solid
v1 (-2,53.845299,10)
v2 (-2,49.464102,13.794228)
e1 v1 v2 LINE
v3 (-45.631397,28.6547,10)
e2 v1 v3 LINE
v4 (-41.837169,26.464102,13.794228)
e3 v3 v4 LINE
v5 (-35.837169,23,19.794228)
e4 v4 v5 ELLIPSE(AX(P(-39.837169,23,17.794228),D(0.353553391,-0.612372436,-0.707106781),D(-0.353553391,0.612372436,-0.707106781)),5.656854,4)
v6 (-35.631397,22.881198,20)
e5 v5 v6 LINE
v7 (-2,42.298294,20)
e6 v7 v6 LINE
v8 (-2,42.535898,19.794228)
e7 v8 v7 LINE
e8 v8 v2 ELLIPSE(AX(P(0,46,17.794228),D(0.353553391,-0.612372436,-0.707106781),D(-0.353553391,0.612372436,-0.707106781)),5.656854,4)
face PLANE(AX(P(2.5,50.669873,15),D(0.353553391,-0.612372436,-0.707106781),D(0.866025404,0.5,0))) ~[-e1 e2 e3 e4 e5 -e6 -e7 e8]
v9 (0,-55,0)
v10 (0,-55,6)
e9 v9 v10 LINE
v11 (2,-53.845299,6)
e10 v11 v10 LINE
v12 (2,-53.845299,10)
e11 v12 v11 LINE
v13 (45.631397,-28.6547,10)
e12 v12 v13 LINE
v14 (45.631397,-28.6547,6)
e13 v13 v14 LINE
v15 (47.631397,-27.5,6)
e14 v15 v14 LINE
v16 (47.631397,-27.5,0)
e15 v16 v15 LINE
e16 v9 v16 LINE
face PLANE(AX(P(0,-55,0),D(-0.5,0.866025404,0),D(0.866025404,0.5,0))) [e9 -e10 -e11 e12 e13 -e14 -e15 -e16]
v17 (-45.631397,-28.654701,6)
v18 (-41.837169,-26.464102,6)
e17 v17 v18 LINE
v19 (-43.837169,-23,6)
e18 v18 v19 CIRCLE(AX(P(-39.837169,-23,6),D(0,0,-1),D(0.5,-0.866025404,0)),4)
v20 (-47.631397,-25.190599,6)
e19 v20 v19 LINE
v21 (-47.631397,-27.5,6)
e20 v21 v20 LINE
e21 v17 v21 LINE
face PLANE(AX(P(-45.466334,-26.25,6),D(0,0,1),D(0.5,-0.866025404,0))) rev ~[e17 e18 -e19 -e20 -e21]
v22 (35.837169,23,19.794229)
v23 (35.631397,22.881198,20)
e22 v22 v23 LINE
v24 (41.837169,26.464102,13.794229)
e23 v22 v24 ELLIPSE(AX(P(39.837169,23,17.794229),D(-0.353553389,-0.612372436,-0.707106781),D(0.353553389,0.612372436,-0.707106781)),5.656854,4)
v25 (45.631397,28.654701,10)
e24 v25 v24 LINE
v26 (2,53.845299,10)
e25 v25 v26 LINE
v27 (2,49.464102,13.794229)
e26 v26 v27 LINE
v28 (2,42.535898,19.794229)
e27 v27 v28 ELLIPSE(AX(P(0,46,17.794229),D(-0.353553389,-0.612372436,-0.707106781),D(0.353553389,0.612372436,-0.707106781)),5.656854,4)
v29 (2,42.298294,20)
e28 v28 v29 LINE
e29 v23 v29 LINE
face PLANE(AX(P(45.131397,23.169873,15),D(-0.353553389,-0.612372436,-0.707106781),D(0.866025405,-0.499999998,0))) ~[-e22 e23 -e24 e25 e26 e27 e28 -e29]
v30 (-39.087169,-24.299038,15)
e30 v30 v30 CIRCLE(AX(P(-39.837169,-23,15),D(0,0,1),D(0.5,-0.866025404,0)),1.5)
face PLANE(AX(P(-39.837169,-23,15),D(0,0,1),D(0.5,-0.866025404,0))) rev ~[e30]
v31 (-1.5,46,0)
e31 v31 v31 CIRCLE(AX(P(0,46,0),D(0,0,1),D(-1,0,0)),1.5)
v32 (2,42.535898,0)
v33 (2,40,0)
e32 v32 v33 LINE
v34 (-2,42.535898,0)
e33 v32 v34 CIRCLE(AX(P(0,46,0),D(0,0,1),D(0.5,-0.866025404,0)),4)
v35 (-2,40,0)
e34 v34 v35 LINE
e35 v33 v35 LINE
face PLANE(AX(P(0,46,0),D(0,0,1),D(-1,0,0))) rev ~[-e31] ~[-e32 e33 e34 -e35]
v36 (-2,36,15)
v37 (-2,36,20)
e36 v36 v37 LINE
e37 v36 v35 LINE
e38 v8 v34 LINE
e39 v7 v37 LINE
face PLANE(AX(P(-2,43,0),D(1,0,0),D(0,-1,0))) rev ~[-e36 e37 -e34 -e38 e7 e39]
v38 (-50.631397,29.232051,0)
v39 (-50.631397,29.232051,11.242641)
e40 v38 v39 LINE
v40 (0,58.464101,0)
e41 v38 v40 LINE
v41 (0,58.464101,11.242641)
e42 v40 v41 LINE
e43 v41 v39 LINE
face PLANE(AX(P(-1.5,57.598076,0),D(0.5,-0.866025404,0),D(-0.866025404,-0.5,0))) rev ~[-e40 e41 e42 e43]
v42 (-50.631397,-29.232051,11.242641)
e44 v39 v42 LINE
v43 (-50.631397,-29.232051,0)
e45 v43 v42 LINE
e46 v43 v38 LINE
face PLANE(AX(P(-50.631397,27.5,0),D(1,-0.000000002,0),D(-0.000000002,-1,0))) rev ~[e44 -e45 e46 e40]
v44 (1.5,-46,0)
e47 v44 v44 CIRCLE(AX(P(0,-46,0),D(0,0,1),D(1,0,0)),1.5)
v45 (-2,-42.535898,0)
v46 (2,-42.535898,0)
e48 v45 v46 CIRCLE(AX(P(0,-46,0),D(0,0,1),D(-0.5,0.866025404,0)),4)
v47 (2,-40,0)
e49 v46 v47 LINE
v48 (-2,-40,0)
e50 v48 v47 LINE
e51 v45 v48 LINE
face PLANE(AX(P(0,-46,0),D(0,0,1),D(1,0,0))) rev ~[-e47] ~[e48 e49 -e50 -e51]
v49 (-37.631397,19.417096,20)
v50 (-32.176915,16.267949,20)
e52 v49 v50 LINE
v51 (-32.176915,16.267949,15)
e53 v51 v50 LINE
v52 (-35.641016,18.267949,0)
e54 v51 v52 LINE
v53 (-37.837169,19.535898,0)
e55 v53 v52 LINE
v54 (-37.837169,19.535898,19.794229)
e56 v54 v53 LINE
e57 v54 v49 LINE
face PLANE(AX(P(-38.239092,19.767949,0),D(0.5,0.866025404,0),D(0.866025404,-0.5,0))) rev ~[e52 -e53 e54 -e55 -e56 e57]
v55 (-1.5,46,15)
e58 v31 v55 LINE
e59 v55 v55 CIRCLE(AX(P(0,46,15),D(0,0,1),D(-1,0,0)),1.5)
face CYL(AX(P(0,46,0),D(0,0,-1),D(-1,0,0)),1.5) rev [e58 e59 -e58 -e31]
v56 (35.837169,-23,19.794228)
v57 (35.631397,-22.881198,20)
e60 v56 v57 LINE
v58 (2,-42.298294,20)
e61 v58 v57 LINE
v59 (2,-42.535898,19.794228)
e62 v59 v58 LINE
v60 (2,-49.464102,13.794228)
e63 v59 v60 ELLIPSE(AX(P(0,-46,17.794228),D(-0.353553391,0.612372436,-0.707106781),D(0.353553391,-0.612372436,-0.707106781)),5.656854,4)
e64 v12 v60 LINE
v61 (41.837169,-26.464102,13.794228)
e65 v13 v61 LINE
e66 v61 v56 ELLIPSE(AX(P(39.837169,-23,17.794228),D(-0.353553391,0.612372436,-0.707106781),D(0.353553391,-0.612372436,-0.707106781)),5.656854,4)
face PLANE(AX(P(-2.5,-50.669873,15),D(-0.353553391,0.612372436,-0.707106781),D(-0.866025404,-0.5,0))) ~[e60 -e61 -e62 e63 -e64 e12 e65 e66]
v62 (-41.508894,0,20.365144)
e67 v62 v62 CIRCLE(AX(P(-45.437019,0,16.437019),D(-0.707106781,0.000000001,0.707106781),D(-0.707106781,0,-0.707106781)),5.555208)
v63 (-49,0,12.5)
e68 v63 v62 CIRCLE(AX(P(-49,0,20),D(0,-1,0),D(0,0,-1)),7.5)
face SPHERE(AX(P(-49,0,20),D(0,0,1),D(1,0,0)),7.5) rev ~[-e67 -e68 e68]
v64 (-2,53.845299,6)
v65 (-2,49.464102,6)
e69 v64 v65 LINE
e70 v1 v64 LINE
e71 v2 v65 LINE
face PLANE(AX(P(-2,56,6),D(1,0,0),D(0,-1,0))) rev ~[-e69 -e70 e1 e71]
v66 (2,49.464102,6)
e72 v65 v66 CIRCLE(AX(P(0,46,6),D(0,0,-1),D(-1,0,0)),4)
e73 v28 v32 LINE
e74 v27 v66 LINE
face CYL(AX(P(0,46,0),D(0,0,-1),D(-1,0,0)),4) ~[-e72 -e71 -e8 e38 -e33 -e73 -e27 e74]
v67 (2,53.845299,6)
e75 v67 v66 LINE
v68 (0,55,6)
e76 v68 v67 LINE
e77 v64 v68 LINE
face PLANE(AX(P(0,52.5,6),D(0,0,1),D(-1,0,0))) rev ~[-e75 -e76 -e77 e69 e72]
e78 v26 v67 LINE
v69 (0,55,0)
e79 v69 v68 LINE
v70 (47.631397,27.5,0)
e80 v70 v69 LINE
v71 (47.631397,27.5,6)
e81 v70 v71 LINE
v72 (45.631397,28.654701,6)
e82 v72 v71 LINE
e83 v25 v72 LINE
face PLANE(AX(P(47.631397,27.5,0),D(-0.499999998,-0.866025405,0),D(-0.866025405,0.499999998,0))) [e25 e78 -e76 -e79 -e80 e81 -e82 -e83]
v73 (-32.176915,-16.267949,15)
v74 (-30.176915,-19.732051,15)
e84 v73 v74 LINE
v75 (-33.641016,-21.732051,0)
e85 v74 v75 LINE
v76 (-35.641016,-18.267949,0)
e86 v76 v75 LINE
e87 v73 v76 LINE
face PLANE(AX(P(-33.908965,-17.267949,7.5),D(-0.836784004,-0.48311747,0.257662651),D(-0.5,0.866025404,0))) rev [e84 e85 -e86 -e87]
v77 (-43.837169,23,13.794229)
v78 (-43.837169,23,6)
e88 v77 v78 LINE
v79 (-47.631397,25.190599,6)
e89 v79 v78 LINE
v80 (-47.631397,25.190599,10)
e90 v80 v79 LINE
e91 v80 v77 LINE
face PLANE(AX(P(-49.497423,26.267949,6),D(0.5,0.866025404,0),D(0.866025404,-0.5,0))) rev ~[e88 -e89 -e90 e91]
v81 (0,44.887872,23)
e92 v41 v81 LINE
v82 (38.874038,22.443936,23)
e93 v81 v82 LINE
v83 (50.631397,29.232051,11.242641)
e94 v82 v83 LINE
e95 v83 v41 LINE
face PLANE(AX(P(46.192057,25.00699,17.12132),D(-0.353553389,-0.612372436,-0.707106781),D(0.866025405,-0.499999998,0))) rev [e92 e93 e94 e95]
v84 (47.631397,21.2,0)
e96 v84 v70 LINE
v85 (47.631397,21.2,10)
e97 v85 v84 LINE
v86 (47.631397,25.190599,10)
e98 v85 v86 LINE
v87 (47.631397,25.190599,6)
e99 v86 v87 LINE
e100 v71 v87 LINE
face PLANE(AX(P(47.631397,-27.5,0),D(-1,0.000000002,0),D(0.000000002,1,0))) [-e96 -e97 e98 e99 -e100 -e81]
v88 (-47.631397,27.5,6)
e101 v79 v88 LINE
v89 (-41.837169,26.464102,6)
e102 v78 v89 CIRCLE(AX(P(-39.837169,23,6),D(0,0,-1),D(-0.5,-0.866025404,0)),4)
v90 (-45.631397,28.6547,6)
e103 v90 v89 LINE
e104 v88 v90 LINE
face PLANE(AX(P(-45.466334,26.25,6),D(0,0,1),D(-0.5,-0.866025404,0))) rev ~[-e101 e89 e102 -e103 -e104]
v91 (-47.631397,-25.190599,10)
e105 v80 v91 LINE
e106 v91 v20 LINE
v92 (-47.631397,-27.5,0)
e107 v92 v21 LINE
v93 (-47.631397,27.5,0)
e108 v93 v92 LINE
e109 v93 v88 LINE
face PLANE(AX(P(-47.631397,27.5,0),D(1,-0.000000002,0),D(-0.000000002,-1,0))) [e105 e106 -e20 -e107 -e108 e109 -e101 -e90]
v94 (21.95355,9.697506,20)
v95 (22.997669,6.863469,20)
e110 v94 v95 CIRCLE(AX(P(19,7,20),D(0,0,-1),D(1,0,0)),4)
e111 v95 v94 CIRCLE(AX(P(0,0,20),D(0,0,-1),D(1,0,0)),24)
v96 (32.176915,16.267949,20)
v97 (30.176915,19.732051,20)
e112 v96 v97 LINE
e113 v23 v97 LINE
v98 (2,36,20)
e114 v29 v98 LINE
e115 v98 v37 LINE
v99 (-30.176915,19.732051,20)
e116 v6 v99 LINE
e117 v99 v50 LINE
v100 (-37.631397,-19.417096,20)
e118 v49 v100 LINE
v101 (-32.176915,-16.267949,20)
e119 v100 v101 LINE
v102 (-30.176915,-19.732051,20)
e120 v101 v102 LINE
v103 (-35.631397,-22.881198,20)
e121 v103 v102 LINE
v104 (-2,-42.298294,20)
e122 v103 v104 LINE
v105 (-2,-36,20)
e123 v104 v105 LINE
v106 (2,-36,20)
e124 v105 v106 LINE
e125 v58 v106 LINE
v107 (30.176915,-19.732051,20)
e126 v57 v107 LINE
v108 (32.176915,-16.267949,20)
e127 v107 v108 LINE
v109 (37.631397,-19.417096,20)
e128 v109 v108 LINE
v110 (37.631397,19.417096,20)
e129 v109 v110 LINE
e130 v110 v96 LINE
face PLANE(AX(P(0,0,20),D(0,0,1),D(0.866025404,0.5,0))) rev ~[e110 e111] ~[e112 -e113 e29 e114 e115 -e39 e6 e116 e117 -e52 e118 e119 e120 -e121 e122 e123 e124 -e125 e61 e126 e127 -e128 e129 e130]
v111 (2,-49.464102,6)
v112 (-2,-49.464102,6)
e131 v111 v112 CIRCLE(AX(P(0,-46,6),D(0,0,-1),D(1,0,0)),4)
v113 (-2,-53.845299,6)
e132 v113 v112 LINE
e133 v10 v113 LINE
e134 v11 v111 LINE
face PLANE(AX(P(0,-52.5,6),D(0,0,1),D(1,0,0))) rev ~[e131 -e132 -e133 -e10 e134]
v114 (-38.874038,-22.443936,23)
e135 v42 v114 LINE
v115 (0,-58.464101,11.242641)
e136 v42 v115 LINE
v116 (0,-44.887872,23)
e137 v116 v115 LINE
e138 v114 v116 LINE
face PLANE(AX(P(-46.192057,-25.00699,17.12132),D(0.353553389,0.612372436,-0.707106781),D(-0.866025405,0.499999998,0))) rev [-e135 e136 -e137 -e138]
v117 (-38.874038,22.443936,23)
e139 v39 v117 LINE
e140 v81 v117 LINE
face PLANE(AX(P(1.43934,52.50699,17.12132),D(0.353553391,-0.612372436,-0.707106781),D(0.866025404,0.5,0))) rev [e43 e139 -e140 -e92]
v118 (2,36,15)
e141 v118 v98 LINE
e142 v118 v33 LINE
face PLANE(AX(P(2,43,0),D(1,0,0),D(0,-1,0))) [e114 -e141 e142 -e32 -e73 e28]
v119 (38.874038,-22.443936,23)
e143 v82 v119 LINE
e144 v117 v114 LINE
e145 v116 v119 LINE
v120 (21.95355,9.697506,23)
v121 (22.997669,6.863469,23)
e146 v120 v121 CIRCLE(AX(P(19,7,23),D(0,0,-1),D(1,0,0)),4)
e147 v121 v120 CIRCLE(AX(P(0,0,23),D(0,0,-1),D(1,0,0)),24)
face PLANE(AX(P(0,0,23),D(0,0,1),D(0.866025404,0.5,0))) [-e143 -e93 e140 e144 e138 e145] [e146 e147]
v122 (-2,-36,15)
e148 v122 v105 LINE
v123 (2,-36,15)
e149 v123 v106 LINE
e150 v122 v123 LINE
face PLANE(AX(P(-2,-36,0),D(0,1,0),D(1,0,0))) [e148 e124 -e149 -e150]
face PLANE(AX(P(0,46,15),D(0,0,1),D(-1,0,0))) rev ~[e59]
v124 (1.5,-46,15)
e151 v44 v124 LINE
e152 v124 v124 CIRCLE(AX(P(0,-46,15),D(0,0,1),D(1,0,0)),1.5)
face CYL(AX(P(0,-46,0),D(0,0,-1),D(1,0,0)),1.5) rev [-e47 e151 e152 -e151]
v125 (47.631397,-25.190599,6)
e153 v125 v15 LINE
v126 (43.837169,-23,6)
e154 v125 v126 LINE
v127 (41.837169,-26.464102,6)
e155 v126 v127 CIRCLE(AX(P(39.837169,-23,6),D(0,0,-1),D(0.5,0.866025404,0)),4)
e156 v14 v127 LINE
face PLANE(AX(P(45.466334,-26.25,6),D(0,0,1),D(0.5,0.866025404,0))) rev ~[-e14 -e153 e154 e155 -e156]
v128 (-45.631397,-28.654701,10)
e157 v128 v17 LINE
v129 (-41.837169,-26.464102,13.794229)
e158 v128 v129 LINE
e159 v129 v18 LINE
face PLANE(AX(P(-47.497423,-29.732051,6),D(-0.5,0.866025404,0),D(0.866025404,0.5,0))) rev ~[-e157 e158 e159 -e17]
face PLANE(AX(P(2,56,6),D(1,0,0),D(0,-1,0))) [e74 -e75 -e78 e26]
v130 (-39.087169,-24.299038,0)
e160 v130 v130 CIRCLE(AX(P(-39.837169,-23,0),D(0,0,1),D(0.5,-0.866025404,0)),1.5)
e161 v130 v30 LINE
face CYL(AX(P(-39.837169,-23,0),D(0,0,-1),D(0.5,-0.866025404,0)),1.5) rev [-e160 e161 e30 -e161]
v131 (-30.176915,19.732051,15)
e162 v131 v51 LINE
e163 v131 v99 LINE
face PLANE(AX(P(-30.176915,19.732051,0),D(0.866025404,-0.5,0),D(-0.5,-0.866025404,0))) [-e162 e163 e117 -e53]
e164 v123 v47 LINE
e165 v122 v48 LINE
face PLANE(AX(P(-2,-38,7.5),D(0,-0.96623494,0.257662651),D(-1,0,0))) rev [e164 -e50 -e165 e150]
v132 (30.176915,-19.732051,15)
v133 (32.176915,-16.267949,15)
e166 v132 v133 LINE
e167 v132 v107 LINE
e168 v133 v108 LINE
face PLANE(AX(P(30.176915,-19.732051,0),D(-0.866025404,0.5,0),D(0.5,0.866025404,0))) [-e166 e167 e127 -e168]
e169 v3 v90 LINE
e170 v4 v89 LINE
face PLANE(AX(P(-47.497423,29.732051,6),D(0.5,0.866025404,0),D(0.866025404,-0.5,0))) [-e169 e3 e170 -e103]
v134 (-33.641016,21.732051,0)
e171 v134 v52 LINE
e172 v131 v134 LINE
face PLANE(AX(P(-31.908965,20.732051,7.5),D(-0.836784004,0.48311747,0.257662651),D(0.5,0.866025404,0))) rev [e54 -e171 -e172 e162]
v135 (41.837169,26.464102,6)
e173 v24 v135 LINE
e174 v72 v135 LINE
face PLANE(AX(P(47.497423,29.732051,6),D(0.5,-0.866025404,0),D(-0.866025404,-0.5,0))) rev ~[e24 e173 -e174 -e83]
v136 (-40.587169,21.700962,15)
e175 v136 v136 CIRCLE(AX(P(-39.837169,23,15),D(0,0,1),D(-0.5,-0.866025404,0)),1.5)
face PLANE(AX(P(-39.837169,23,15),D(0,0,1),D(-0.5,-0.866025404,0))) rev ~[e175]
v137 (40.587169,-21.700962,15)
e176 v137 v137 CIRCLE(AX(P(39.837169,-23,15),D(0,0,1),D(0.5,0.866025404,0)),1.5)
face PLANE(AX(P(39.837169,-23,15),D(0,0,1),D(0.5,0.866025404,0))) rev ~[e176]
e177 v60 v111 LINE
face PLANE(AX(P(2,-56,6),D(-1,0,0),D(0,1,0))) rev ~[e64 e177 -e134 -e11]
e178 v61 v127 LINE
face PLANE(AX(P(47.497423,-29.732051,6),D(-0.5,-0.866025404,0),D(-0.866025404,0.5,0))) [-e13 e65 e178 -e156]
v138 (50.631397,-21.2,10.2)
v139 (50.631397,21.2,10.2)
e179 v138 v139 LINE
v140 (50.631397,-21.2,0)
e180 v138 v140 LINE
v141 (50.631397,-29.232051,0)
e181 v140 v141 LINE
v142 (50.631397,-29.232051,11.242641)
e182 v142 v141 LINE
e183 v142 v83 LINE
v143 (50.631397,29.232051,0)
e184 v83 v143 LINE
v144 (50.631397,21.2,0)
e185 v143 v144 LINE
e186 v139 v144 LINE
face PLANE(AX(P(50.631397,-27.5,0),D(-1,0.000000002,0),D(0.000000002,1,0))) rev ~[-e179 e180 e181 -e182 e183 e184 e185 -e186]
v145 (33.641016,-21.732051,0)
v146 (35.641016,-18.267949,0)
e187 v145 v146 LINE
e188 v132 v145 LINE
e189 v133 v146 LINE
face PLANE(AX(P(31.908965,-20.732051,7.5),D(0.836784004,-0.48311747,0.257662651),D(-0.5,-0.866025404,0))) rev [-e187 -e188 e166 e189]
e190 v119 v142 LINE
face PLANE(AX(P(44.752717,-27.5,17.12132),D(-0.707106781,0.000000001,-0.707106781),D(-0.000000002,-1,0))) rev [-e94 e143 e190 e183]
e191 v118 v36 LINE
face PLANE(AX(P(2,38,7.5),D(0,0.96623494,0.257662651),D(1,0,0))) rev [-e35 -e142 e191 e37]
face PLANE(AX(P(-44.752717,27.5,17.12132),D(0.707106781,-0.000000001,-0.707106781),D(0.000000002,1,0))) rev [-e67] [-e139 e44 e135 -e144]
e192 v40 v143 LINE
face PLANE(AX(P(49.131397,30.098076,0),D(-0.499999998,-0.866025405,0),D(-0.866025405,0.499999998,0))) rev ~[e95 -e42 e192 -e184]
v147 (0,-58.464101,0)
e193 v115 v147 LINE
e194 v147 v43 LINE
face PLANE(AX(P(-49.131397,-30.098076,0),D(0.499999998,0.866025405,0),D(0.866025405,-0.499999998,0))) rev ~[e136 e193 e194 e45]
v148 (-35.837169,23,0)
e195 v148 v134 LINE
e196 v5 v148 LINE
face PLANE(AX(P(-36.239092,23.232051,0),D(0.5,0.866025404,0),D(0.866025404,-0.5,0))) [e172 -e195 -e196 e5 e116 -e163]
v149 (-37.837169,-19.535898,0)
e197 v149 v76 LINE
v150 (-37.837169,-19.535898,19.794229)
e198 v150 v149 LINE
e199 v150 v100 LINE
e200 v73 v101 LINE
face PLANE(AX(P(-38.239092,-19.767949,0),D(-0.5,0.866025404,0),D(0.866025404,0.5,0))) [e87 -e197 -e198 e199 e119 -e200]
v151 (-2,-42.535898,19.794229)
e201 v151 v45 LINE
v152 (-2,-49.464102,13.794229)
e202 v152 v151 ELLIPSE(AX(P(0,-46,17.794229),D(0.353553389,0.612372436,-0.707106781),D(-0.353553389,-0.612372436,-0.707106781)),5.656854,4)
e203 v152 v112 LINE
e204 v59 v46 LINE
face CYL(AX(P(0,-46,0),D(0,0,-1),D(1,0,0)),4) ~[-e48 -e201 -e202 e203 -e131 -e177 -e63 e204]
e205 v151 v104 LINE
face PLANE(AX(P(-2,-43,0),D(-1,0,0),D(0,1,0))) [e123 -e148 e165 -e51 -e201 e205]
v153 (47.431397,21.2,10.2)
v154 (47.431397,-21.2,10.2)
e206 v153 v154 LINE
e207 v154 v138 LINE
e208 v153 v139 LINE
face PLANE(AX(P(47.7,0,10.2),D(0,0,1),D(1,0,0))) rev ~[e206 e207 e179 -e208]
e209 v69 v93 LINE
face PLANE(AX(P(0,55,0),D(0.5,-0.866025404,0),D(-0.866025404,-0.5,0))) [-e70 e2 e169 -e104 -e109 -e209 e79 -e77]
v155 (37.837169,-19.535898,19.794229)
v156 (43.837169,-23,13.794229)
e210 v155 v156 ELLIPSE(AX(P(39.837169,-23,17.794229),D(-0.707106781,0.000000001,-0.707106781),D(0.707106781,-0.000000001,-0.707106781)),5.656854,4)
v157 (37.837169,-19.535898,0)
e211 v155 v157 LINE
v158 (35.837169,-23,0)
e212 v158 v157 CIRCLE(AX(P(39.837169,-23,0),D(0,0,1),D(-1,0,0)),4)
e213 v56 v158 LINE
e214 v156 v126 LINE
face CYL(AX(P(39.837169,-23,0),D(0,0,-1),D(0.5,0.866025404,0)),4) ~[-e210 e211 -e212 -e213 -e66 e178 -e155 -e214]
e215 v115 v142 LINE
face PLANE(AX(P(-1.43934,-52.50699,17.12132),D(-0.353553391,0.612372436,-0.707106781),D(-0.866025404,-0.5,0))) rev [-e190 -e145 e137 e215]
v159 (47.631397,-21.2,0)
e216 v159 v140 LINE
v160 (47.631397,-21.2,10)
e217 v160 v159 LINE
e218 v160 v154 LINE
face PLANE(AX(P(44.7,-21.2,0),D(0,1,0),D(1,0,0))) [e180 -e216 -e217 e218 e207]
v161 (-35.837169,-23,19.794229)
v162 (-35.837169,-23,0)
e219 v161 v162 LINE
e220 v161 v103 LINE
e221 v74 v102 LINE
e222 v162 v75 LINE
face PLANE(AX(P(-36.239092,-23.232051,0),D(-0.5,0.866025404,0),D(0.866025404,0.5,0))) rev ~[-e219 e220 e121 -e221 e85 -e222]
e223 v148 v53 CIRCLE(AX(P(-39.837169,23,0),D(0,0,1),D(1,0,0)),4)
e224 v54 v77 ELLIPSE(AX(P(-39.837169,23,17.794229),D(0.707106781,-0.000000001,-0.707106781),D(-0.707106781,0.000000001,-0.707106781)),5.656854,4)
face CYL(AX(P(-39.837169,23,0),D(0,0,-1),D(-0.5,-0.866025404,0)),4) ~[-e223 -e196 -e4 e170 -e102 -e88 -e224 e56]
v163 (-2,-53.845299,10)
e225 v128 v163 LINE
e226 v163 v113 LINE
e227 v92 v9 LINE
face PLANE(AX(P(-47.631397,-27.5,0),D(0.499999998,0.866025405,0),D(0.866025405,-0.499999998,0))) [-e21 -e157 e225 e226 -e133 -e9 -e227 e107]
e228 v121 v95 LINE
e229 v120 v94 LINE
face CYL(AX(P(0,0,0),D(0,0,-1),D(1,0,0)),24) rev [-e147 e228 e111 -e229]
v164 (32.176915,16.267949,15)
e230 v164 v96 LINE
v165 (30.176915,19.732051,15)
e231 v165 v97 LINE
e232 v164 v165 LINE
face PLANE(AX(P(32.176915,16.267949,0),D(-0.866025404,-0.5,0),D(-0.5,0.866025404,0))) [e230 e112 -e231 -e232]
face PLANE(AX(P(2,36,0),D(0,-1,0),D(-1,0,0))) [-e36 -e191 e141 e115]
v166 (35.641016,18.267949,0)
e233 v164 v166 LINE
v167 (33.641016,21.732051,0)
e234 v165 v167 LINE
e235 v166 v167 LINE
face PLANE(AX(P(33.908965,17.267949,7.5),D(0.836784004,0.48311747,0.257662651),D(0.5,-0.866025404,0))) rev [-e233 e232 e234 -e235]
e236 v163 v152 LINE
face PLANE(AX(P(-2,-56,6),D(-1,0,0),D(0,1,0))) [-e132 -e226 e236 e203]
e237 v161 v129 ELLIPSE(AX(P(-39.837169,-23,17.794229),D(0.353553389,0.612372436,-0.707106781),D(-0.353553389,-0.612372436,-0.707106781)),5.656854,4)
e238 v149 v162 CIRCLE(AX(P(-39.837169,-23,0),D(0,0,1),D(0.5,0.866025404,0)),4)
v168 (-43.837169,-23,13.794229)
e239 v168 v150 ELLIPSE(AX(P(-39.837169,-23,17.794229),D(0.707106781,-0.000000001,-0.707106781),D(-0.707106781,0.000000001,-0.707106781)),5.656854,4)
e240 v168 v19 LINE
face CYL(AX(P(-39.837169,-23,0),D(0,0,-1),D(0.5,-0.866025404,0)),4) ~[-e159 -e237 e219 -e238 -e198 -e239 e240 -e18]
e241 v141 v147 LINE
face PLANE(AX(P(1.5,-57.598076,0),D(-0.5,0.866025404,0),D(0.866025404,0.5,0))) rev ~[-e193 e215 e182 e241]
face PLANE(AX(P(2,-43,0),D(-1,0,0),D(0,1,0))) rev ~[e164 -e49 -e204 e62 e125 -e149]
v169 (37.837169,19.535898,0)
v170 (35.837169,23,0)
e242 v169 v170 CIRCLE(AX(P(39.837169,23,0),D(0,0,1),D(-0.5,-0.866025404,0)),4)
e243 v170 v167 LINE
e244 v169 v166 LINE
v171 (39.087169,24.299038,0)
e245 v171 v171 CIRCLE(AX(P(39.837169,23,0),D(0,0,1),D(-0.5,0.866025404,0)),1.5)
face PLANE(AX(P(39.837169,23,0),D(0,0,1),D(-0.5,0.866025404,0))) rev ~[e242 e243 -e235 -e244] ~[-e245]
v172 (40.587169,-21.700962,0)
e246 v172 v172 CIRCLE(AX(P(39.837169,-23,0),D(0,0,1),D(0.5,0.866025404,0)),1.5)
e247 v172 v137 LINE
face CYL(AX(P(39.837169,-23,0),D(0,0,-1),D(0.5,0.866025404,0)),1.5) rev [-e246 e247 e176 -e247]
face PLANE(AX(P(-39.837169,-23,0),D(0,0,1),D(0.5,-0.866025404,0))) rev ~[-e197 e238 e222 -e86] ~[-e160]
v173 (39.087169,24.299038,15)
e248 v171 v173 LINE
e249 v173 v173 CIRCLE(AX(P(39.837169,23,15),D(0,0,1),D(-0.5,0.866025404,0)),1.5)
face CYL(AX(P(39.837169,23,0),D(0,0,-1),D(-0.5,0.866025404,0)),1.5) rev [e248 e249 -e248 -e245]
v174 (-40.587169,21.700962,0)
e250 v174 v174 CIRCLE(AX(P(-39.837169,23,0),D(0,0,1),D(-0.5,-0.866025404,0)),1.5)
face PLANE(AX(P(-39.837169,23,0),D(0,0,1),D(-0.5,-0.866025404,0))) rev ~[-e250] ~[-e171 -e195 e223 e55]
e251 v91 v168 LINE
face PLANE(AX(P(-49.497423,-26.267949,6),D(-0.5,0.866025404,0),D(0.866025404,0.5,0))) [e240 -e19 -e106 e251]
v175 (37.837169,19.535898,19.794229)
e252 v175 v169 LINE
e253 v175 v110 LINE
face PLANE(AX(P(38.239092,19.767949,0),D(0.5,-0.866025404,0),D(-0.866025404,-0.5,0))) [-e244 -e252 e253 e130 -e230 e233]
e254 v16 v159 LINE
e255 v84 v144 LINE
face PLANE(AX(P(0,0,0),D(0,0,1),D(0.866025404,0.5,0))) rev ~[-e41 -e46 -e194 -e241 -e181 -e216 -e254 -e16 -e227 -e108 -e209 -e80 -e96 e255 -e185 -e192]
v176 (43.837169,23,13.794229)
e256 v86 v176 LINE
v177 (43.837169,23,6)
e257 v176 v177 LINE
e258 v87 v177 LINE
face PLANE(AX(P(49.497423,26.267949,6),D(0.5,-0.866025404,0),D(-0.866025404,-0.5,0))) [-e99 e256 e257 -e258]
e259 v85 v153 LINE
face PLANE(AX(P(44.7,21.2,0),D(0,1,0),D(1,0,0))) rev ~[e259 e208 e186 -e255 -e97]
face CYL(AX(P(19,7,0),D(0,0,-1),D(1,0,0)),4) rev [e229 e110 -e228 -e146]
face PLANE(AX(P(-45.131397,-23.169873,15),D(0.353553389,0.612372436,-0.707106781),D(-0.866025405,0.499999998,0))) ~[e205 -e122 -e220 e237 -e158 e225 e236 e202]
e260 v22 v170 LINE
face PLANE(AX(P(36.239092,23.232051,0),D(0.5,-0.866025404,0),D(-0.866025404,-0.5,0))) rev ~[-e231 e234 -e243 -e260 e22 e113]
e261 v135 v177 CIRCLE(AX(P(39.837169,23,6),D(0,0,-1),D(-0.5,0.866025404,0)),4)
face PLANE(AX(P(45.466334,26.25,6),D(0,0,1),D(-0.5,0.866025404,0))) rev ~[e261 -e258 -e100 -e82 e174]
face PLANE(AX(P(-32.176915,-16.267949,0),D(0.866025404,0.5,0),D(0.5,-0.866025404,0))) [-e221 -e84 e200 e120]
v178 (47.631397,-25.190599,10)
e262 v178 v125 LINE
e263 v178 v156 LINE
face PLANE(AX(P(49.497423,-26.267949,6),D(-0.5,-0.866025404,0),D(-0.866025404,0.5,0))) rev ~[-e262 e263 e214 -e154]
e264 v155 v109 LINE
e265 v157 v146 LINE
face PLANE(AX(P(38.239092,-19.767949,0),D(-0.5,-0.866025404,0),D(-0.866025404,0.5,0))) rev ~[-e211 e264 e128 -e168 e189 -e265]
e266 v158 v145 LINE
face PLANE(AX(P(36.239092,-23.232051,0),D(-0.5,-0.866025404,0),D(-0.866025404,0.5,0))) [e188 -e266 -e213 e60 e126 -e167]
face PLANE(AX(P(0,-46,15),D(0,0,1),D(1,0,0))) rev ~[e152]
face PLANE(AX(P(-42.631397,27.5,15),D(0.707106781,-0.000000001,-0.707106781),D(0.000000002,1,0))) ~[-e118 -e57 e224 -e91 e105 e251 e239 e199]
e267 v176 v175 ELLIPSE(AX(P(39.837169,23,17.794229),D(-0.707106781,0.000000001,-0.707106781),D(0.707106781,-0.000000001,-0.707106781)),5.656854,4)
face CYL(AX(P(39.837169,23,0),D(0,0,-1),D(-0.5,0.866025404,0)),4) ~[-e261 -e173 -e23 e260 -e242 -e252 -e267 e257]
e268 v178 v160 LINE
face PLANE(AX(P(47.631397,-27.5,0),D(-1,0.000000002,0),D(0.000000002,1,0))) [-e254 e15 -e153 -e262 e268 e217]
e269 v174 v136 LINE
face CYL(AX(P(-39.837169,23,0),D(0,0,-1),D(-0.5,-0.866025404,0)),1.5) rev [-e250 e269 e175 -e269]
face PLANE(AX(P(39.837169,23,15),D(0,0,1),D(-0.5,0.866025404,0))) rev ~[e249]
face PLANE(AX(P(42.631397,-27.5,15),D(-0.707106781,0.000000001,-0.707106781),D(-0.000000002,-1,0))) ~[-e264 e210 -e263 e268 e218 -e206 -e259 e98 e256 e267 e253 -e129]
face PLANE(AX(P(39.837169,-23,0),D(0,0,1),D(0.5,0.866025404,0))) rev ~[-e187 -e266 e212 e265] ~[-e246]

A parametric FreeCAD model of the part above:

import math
import FreeCAD as App
import Part
import Sketcher

V = App.Vector
Q = App.Units.Quantity


def edges_at(feature, points):
    """Names of the edges that pass closest to the given points."""
    edges = feature.Shape.Edges
    near = lambda p: min(range(len(edges)), key=lambda i: edges[i].distToShape(Part.Vertex(*p))[0])
    return sorted({f"Edge{near(p) + 1}" for p in points})


def faces_at(feature, points):
    """Names of the faces that lie closest to the given points."""
    faces = feature.Shape.Faces
    near = lambda p: min(range(len(faces)), key=lambda i: faces[i].distToShape(Part.Vertex(*p))[0])
    return sorted({f"Face{near(p) + 1}" for p in points})


def add_polygon(sketch, points):
    """Adds a closed chain of lines whose ends are joined by coincident constraints."""
    first, n = sketch.GeometryCount, len(points)
    for a, b in zip(points, points[1:] + points[:1]):
        sketch.addGeometry(Part.LineSegment(App.Vector(*a, 0), App.Vector(*b, 0)), False)
    for i in range(n):
        sketch.addConstraint(Sketcher.Constraint("Coincident", first + i, 2, first + (i + 1) % n, 1))

doc = App.newDocument("Part")
params = doc.addObject("Spreadsheet::Sheet", "Params")
for row, (alias, value) in enumerate([
    ("sketch1_radius", "7.5 mm"),
    ("revolution_angle", "360 deg"),
    ("sketch2_width", "6 mm"),
    ("sketch2_height", "42.4 mm"),
    ("pad1_length", "10.2 mm"),
    ("sketch3_diameter", "4 mm"),
    ("pad2_length", "42 mm"),
    ("sketch4_height", "10 mm"),
    ("sketch4_length", "10 mm"),
    ("pad3_length", "37 mm"),
    ("sketch5_diameter", "8 mm"),
    ("pad4_length", "44 mm"),
    ("sketch6_diameter", "48 mm"),
    ("pad5_length", "44 mm"),
    ("sketch7_width", "6 mm"),
    ("sketch7_width2", "9 mm"),
    ("pad6_length", "5.62 mm"),
    ("sketch8_width", "55 mm"),
    ("sketch8_length", "55 mm"),
    ("pad7_length", "20 mm"),
    ("chamfer_size", "10 mm"),
    ("thickness_wall", "3 mm"),
    ("sketch9_diameter", "3 mm"),
    ("pad8_length", "15 mm"),
    ("sketch10_width", "4 mm"),
    ("sketch10_height", "7 mm"),
    ("pad9_length", "22 mm"),
    ("chamfer2_size", "15 mm"),
    ("chamfer2_size2", "4 mm"),
    ("sketch11_width", "12 mm"),
    ("sketch11_height", "10 mm"),
    ("pad10_length", "14 mm"),
    ("sketch12_diameter", "8 mm"),
    ("pad11_length", "21 mm"),
    ("sketch13_width", "4 mm"),
    ("sketch13_height", "7 mm"),
    ("pad12_length", "10 mm"),
    ("chamfer3_size", "5 mm"),
], start=1):
    params.set(f"A{row}", alias)
    params.set(f"B{row}", "=" + value)
    params.setAlias(f"B{row}", alias)

body = doc.addObject("PartDesign::Body", "Body")

sketch1 = body.newObject("Sketcher::SketchObject", "Sketch")
sketch1.AttachmentSupport = (doc.getObject("XZ_Plane"), [""])
sketch1.MapMode = "FlatFace"
sketch1.addGeometry(Part.ArcOfCircle(Part.Circle(V(-49, 20, 0), V(0, 0, 1), 8), math.radians(-90), math.radians(90)), False)
sketch1.addGeometry(Part.LineSegment(V(-49, 28, 0), V(-49, 12, 0)), False)
sketch1.addGeometry(Part.LineSegment(V(-49, 12, 0), V(-49, 28, 0)), True)
sketch1.addConstraint(Sketcher.Constraint("Coincident", 0, 1, 1, 2))
sketch1.addConstraint(Sketcher.Constraint("Coincident", 1, 1, 0, 2))
sketch1.addConstraint(Sketcher.Constraint("Vertical", 1))
sketch1.addConstraint(Sketcher.Constraint("Vertical", 2))
sketch1.addConstraint(Sketcher.Constraint("Coincident", 2, 1, 0, 1))
sketch1.addConstraint(Sketcher.Constraint("Equal", 1, 2))
sketch1.addConstraint(Sketcher.Constraint("Radius", 0, Q("7.5 mm")))
sketch1.addConstraint(Sketcher.Constraint("DistanceX", 0, 3, -1, 1, Q("49 mm")))
sketch1.addConstraint(Sketcher.Constraint("DistanceY", -1, 1, 0, 3, Q("20 mm")))
sketch1.addConstraint(Sketcher.Constraint("DistanceX", 0, 1, -1, 1, Q("49 mm")))
sketch1.setExpression("Constraints[6]", "Params.sketch1_radius")
revolution = body.newObject("PartDesign::Revolution", "Revolution")
revolution.Profile = sketch1
revolution.ReferenceAxis = (sketch1, ["Axis0"])
revolution.setExpression("Angle", "Params.revolution_angle")
body2 = doc.addObject("PartDesign::Body", "Body001")

sketch2 = body2.newObject("Sketcher::SketchObject", "Sketch001")
sketch2.AttachmentSupport = (doc.getObject("XY_Plane001"), [""])
sketch2.MapMode = "FlatFace"
add_polygon(sketch2, [(45, 21), (45, -21), (51, -21), (51, 21)])
sketch2.addConstraint(Sketcher.Constraint("Vertical", 0))
sketch2.addConstraint(Sketcher.Constraint("Horizontal", 1))
sketch2.addConstraint(Sketcher.Constraint("Vertical", 2))
sketch2.addConstraint(Sketcher.Constraint("Horizontal", 3))
sketch2.addConstraint(Sketcher.Constraint("DistanceX", 1, 1, 1, 2, Q("6 mm")))
sketch2.addConstraint(Sketcher.Constraint("DistanceY", 0, 2, 0, 1, Q("42.4 mm")))
sketch2.addConstraint(Sketcher.Constraint("DistanceX", -1, 1, 0, 2, Q("44.7 mm")))
sketch2.addConstraint(Sketcher.Constraint("DistanceY", 0, 2, -1, 1, Q("21.2 mm")))
sketch2.setExpression("Constraints[8]", "Params.sketch2_width")
sketch2.setExpression("Constraints[9]", "Params.sketch2_height")
pad1 = body2.newObject("PartDesign::Pad", "Pad")
pad1.Profile = sketch2
pad1.setExpression("Length", "Params.pad1_length")
body3 = doc.addObject("PartDesign::Body", "Body002")

sketch3 = body3.newObject("Sketcher::SketchObject", "Sketch002")
sketch3.AttachmentSupport = (doc.getObject("XY_Plane002"), [""])
sketch3.MapMode = "FlatFace"
sketch3.addGeometry(Part.Circle(V(0, 0, 0), V(0, 0, 1), 2), False)
sketch3.addConstraint(Sketcher.Constraint("Coincident", 0, 3, -1, 1))
sketch3.addConstraint(Sketcher.Constraint("Diameter", 0, Q("4 mm")))
sketch3.setExpression("Constraints[1]", "Params.sketch3_diameter")
pad2 = body3.newObject("PartDesign::Pad", "Pad001")
pad2.Profile = sketch3
pad2.setExpression("Length", "Params.pad2_length")
body4 = doc.addObject("PartDesign::Body", "Body003")
doc.recompute()

body3.Placement = App.Placement(V(0, 0, 0), App.Rotation(V(1, 0, 0), 90))
boolean = body4.newObject("PartDesign::Boolean", "Boolean")
boolean.Type = "Fuse"
boolean.addObjects([body3])
body5 = doc.addObject("PartDesign::Body", "Body004")
doc.recompute()

body4.Placement = App.Placement(V(-39, 21, 33), App.Rotation(V(0, 0, 1), 0))
boolean2 = body5.newObject("PartDesign::Boolean", "Boolean001")
boolean2.Type = "Fuse"
boolean2.addObjects([body4])
body6 = doc.addObject("PartDesign::Body", "Body005")

sketch4 = body6.newObject("Sketcher::SketchObject", "Sketch003")
sketch4.AttachmentSupport = (doc.getObject("XY_Plane005"), [""])
sketch4.MapMode = "FlatFace"
add_polygon(sketch4, [(-41, 10), (-50, 5), (-50, -5), (-41, -10), (-32, -5), (-32, 5)])
sketch4.addConstraint(Sketcher.Constraint("Vertical", 1))
sketch4.addConstraint(Sketcher.Constraint("Vertical", 4))
sketch4.addConstraint(Sketcher.Constraint("Symmetric", 2, 2, 5, 2, -1))
sketch4.addConstraint(Sketcher.Constraint("Parallel", 0, 3))
sketch4.addConstraint(Sketcher.Constraint("Parallel", 2, 5))
sketch4.addConstraint(Sketcher.Constraint("Horizontal", 1, 2, 3, 2))
sketch4.addConstraint(Sketcher.Constraint("Horizontal", 0, 2, 4, 2))
sketch4.addConstraint(Sketcher.Constraint("DistanceY", 1, 2, 1, 1, Q("10 mm")))
sketch4.addConstraint(Sketcher.Constraint("Angle", 0, Q("-150 deg")))
sketch4.addConstraint(Sketcher.Constraint("Distance", 0, Q("10 mm")))
sketch4.addConstraint(Sketcher.Constraint("DistanceX", 2, 2, -1, 1, Q("40.876069 mm")))
sketch4.setExpression("Constraints[13]", "Params.sketch4_height")
sketch4.setExpression("Constraints[15]", "Params.sketch4_length")
pad3 = body6.newObject("PartDesign::Pad", "Pad002")
pad3.Profile = sketch4
pad3.setExpression("Length", "Params.pad3_length")
body7 = doc.addObject("PartDesign::Body", "Body006")
doc.recompute()

body6.Placement = App.Placement(V(0, 0, 0), App.Rotation(V(0, 1, 0), 315))
boolean3 = body7.newObject("PartDesign::Boolean", "Boolean002")
boolean3.Type = "Fuse"
boolean3.addObjects([body6])
body8 = doc.addObject("PartDesign::Body", "Body007")
doc.recompute()

body7.Placement = App.Placement(V(0, 0, 103), App.Rotation(V(0, 0, 1), 0))
boolean4 = body8.newObject("PartDesign::Boolean", "Boolean003")
boolean4.Type = "Fuse"
boolean4.addObjects([body7])
body9 = doc.addObject("PartDesign::Body", "Body008")

sketch5 = body9.newObject("Sketcher::SketchObject", "Sketch004")
sketch5.AttachmentSupport = (doc.getObject("XY_Plane008"), [""])
sketch5.MapMode = "FlatFace"
sketch5.addGeometry(Part.Circle(V(19, 7, 0), V(0, 0, 1), 4), False)
sketch5.addConstraint(Sketcher.Constraint("Diameter", 0, Q("8 mm")))
sketch5.addConstraint(Sketcher.Constraint("DistanceX", -1, 1, 0, 3, Q("19 mm")))
sketch5.addConstraint(Sketcher.Constraint("DistanceY", -1, 1, 0, 3, Q("7 mm")))
sketch5.setExpression("Constraints[0]", "Params.sketch5_diameter")
pad4 = body9.newObject("PartDesign::Pad", "Pad003")
pad4.Profile = sketch5
pad4.setExpression("Length", "Params.pad4_length")
body10 = doc.addObject("PartDesign::Body", "Body009")

sketch6 = body10.newObject("Sketcher::SketchObject", "Sketch005")
sketch6.AttachmentSupport = (doc.getObject("XY_Plane009"), [""])
sketch6.MapMode = "FlatFace"
sketch6.addGeometry(Part.Circle(V(0, 0, 0), V(0, 0, 1), 24), False)
sketch6.addConstraint(Sketcher.Constraint("Coincident", 0, 3, -1, 1))
sketch6.addConstraint(Sketcher.Constraint("Diameter", 0, Q("48 mm")))
sketch6.setExpression("Constraints[1]", "Params.sketch6_diameter")
pad5 = body10.newObject("PartDesign::Pad", "Pad004")
pad5.Profile = sketch6
pad5.setExpression("Length", "Params.pad5_length")
doc.recompute()

boolean5 = body10.newObject("PartDesign::Boolean", "Boolean004")
boolean5.Type = "Fuse"
boolean5.addObjects([body9])
body11 = doc.addObject("PartDesign::Body", "Body010")

sketch7 = body11.newObject("Sketcher::SketchObject", "Sketch006")
sketch7.AttachmentSupport = (doc.getObject("YZ_Plane010"), [""])
sketch7.MapMode = "FlatFace"
add_polygon(sketch7, [(3, 0.5), (-3, 0.5), (-4.5, -3.3), (4.5, -3.3)])
sketch7.addConstraint(Sketcher.Constraint("Horizontal", 0))
sketch7.addConstraint(Sketcher.Constraint("Horizontal", 2))
sketch7.addConstraint(Sketcher.Constraint("Equal", 1, 3))
sketch7.addConstraint(Sketcher.Constraint("DistanceX", 0, 2, 0, 1, Q("6 mm")))
sketch7.addConstraint(Sketcher.Constraint("DistanceX", 2, 1, 2, 2, Q("9 mm")))
sketch7.addConstraint(Sketcher.Constraint("DistanceX", 0, 2, -1, 1, Q("3 mm")))
sketch7.addConstraint(Sketcher.Constraint("DistanceY", 1, 2, 0, 2, Q("3.8 mm")))
sketch7.addConstraint(Sketcher.Constraint("DistanceY", -1, 1, 0, 2, Q("0.536587 mm")))
sketch7.setExpression("Constraints[7]", "Params.sketch7_width")
sketch7.setExpression("Constraints[8]", "Params.sketch7_width2")
pad6 = body11.newObject("PartDesign::Pad", "Pad005")
pad6.Profile = sketch7
pad6.setExpression("Length", "Params.pad6_length")
body12 = doc.addObject("PartDesign::Body", "Body011")
doc.recompute()

body11.Placement = App.Placement(V(45.85, 0, 5), App.Rotation(V(0, 0, 1), 0))
boolean6 = body12.newObject("PartDesign::Boolean", "Boolean005")
boolean6.Type = "Fuse"
boolean6.addObjects([body11])
body13 = doc.addObject("PartDesign::Body", "Body012")

sketch8 = body13.newObject("Sketcher::SketchObject", "Sketch007")
sketch8.AttachmentSupport = (doc.getObject("XY_Plane012"), [""])
sketch8.MapMode = "FlatFace"
add_polygon(sketch8, [(55, 0), (28, 48), (-28, 48), (-55, 0), (-28, -48), (28, -48)])
sketch8.addConstraint(Sketcher.Constraint("Horizontal", 1))
sketch8.addConstraint(Sketcher.Constraint("Horizontal", 4))
sketch8.addConstraint(Sketcher.Constraint("Symmetric", 0, 2, 3, 2, -1, 1))
sketch8.addConstraint(Sketcher.Constraint("Symmetric", 2, 2, 5, 2, -1, 1))
sketch8.addConstraint(Sketcher.Constraint("PointOnObject", 2, 2, -1))
sketch8.addConstraint(Sketcher.Constraint("Parallel", 2, 5))
sketch8.addConstraint(Sketcher.Constraint("Vertical", 1, 2, 3, 2))
sketch8.addConstraint(Sketcher.Constraint("DistanceX", 1, 2, 1, 1, Q("55 mm")))
sketch8.addConstraint(Sketcher.Constraint("Angle", 0, Q("120 deg")))
sketch8.addConstraint(Sketcher.Constraint("Distance", 0, Q("55 mm")))
sketch8.setExpression("Constraints[13]", "Params.sketch8_width")
sketch8.setExpression("Constraints[15]", "Params.sketch8_length")
pad7 = body13.newObject("PartDesign::Pad", "Pad006")
pad7.Profile = sketch8
pad7.setExpression("Length", "Params.pad7_length")
body14 = doc.addObject("PartDesign::Body", "Body013")
doc.recompute()

body13.Placement = App.Placement(V(0, 0, 0), App.Rotation(V(0, 0, 1), 30))
boolean7 = body14.newObject("PartDesign::Boolean", "Boolean006")
boolean7.Type = "Fuse"
boolean7.addObjects([body13])
doc.recompute()

chamfer = body14.newObject("PartDesign::Chamfer", "Chamfer")
chamfer.Base = (boolean7, edges_at(boolean7, [
    (23.816, 41.25, 20),
    (-23.816, 41.25, 20),
    (-47.631, 0, 20),
    (-23.816, -41.25, 20),
    (23.816, -41.25, 20),
    (47.631, 0, 20),
]))
chamfer.setExpression("Size", "Params.chamfer_size")
doc.recompute()

thickness = body14.newObject("PartDesign::Thickness", "Thickness")
thickness.Base = (chamfer, faces_at(chamfer, [(0, 0, 0)]))
thickness.setExpression("Value", "Params.thickness_wall")
thickness.Reversed = False
thickness.Join = "Intersection"
doc.recompute()

boolean8 = body14.newObject("PartDesign::Boolean", "Boolean007")
boolean8.Type = "Cut"
boolean8.addObjects([body12])
doc.recompute()

boolean9 = body14.newObject("PartDesign::Boolean", "Boolean008")
boolean9.Type = "Cut"
boolean9.addObjects([body10])
doc.recompute()

boolean10 = body14.newObject("PartDesign::Boolean", "Boolean009")
boolean10.Type = "Cut"
boolean10.addObjects([body8])
doc.recompute()

boolean11 = body14.newObject("PartDesign::Boolean", "Boolean010")
boolean11.Type = "Cut"
boolean11.addObjects([body5])
doc.recompute()

boolean12 = body14.newObject("PartDesign::Boolean", "Boolean011")
boolean12.Type = "Cut"
boolean12.addObjects([body2])
body15 = doc.addObject("PartDesign::Body", "Body014")

sketch9 = body15.newObject("Sketcher::SketchObject", "Sketch008")
sketch9.AttachmentSupport = (doc.getObject("XY_Plane014"), [""])
sketch9.MapMode = "FlatFace"
sketch9.addGeometry(Part.Circle(V(0, -46, 0), V(0, 0, 1), 1.5), False)
sketch9.addConstraint(Sketcher.Constraint("PointOnObject", 0, 3, -2))
sketch9.addConstraint(Sketcher.Constraint("Diameter", 0, Q("3 mm")))
sketch9.addConstraint(Sketcher.Constraint("DistanceY", 0, 3, -1, 1, Q("46 mm")))
sketch9.setExpression("Constraints[1]", "Params.sketch9_diameter")
pad8 = body15.newObject("PartDesign::Pad", "Pad007")
pad8.Profile = sketch9
pad8.setExpression("Length", "Params.pad8_length")
body16 = doc.addObject("PartDesign::Body", "Body015")

sketch10 = body16.newObject("Sketcher::SketchObject", "Sketch009")
sketch10.AttachmentSupport = (doc.getObject("XY_Plane015"), [""])
sketch10.MapMode = "FlatFace"
add_polygon(sketch10, [(-2, -36), (-2, -43), (2, -43), (2, -36)])
sketch10.addConstraint(Sketcher.Constraint("Vertical", 0))
sketch10.addConstraint(Sketcher.Constraint("Horizontal", 1))
sketch10.addConstraint(Sketcher.Constraint("Vertical", 2))
sketch10.addConstraint(Sketcher.Constraint("Horizontal", 3))
sketch10.addConstraint(Sketcher.Constraint("DistanceX", 1, 1, 1, 2, Q("4 mm")))
sketch10.addConstraint(Sketcher.Constraint("DistanceY", 0, 2, 0, 1, Q("7 mm")))
sketch10.addConstraint(Sketcher.Constraint("DistanceX", 0, 2, -1, 1, Q("2 mm")))
sketch10.addConstraint(Sketcher.Constraint("DistanceY", 0, 2, -1, 1, Q("43 mm")))
sketch10.setExpression("Constraints[8]", "Params.sketch10_width")
sketch10.setExpression("Constraints[9]", "Params.sketch10_height")
pad9 = body16.newObject("PartDesign::Pad", "Pad008")
pad9.Profile = sketch10
pad9.setExpression("Length", "Params.pad9_length")
doc.recompute()

chamfer2 = body16.newObject("PartDesign::Chamfer", "Chamfer001")
chamfer2.Base = (pad9, edges_at(pad9, [(0, -36, 0)]))
chamfer2.ChamferType = "Two distances"
chamfer2.setExpression("Size", "Params.chamfer2_size")
chamfer2.setExpression("Size2", "Params.chamfer2_size2")
body17 = doc.addObject("PartDesign::Body", "Body016")

sketch11 = body17.newObject("Sketcher::SketchObject", "Sketch010")
sketch11.AttachmentSupport = (doc.getObject("XY_Plane016"), [""])
sketch11.MapMode = "FlatFace"
add_polygon(sketch11, [(0, 10), (0, 0), (12, 0), (12, 10)])
sketch11.addConstraint(Sketcher.Constraint("Vertical", 0))
sketch11.addConstraint(Sketcher.Constraint("Horizontal", 1))
sketch11.addConstraint(Sketcher.Constraint("Vertical", 2))
sketch11.addConstraint(Sketcher.Constraint("Horizontal", 3))
sketch11.addConstraint(Sketcher.Constraint("Coincident", 0, 2, -1, 1))
sketch11.addConstraint(Sketcher.Constraint("DistanceX", 1, 1, 1, 2, Q("12 mm")))
sketch11.addConstraint(Sketcher.Constraint("DistanceY", 0, 2, 0, 1, Q("10 mm")))
sketch11.setExpression("Constraints[9]", "Params.sketch11_width")
sketch11.setExpression("Constraints[10]", "Params.sketch11_height")
pad10 = body17.newObject("PartDesign::Pad", "Pad009")
pad10.Profile = sketch11
pad10.setExpression("Length", "Params.pad10_length")
body18 = doc.addObject("PartDesign::Body", "Body017")
doc.recompute()

body17.Placement = App.Placement(V(0, 0, 0), App.Rotation(V(1, 0, 0), 315))
boolean13 = body18.newObject("PartDesign::Boolean", "Boolean012")
boolean13.Type = "Fuse"
boolean13.addObjects([body17])
body19 = doc.addObject("PartDesign::Body", "Body018")
doc.recompute()

body18.Placement = App.Placement(V(-7, -59, 20), App.Rotation(V(0, 0, 1), 0))
boolean14 = body19.newObject("PartDesign::Boolean", "Boolean013")
boolean14.Type = "Fuse"
boolean14.addObjects([body18])
body20 = doc.addObject("PartDesign::Body", "Body019")

sketch12 = body20.newObject("Sketcher::SketchObject", "Sketch011")
sketch12.AttachmentSupport = (doc.getObject("XY_Plane019"), [""])
sketch12.MapMode = "FlatFace"
sketch12.addGeometry(Part.Circle(V(0, -46, 0), V(0, 0, 1), 4), False)
sketch12.addConstraint(Sketcher.Constraint("PointOnObject", 0, 3, -2))
sketch12.addConstraint(Sketcher.Constraint("Diameter", 0, Q("8 mm")))
sketch12.addConstraint(Sketcher.Constraint("DistanceY", 0, 3, -1, 1, Q("46 mm")))
sketch12.setExpression("Constraints[1]", "Params.sketch12_diameter")
pad11 = body20.newObject("PartDesign::Pad", "Pad010")
pad11.Profile = sketch12
pad11.setExpression("Length", "Params.pad11_length")
doc.recompute()

boolean15 = body20.newObject("PartDesign::Boolean", "Boolean014")
boolean15.Type = "Cut"
boolean15.addObjects([body19])
body21 = doc.addObject("PartDesign::Body", "Body020")
body21.AllowCompound = True

sketch13 = body21.newObject("Sketcher::SketchObject", "Sketch012")
sketch13.AttachmentSupport = (doc.getObject("XY_Plane020"), [""])
sketch13.MapMode = "FlatFace"
sketch13.AttachmentOffset = App.Placement(V(0, 0, 6), App.Rotation())
add_polygon(sketch13, [(-2, -49), (-2, -56), (2, -56), (2, -49)])
sketch13.addConstraint(Sketcher.Constraint("Vertical", 0))
sketch13.addConstraint(Sketcher.Constraint("Horizontal", 1))
sketch13.addConstraint(Sketcher.Constraint("Vertical", 2))
sketch13.addConstraint(Sketcher.Constraint("Horizontal", 3))
sketch13.addConstraint(Sketcher.Constraint("DistanceX", 1, 1, 1, 2, Q("4 mm")))
sketch13.addConstraint(Sketcher.Constraint("DistanceY", 0, 2, 0, 1, Q("7 mm")))
sketch13.addConstraint(Sketcher.Constraint("DistanceX", 0, 2, -1, 1, Q("2 mm")))
sketch13.addConstraint(Sketcher.Constraint("DistanceY", 0, 2, -1, 1, Q("56 mm")))
sketch13.setExpression("Constraints[8]", "Params.sketch13_width")
sketch13.setExpression("Constraints[9]", "Params.sketch13_height")
pad12 = body21.newObject("PartDesign::Pad", "Pad011")
pad12.Profile = sketch13
pad12.setExpression("Length", "Params.pad12_length")
doc.recompute()

chamfer3 = body21.newObject("PartDesign::Chamfer", "Chamfer002")
chamfer3.Base = (pad12, edges_at(pad12, [(0, -56, 16)]))
chamfer3.setExpression("Size", "Params.chamfer3_size")
doc.recompute()

boolean16 = body21.newObject("PartDesign::Boolean", "Boolean015")
boolean16.Type = "Fuse"
boolean16.addObjects([body16])
doc.recompute()

boolean17 = body21.newObject("PartDesign::Boolean", "Boolean016")
boolean17.Type = "Fuse"
boolean17.addObjects([body20])
doc.recompute()

boolean18 = body21.newObject("PartDesign::Boolean", "Boolean017")
boolean18.Type = "Cut"
boolean18.addObjects([body15])
body22 = doc.addObject("PartDesign::Body", "Body021")
body22.AllowCompound = True
doc.recompute()

body22.BaseFeature = body21
doc.recompute()

body23 = doc.addObject("PartDesign::Body", "Body022")
body23.BaseFeature = body21
body23.Placement = App.Placement(V(0, 0, 0), App.Rotation(V(0, 0, 1), 60))
boolean19 = body22.newObject("PartDesign::Boolean", "Boolean018")
boolean19.Type = "Fuse"
boolean19.addObjects([body23])
doc.recompute()

body24 = doc.addObject("PartDesign::Body", "Body023")
body24.BaseFeature = body21
body24.Placement = App.Placement(V(0, 0, 0), App.Rotation(V(0, 0, 1), 120))
boolean20 = body22.newObject("PartDesign::Boolean", "Boolean019")
boolean20.Type = "Fuse"
boolean20.addObjects([body24])
doc.recompute()

body25 = doc.addObject("PartDesign::Body", "Body024")
body25.BaseFeature = body21
body25.Placement = App.Placement(V(0, 0, 0), App.Rotation(V(0, 0, 1), 180))
boolean21 = body22.newObject("PartDesign::Boolean", "Boolean020")
boolean21.Type = "Fuse"
boolean21.addObjects([body25])
doc.recompute()

body26 = doc.addObject("PartDesign::Body", "Body025")
body26.BaseFeature = body21
body26.Placement = App.Placement(V(0, 0, 0), App.Rotation(V(0, 0, 1), 240))
boolean22 = body22.newObject("PartDesign::Boolean", "Boolean021")
boolean22.Type = "Fuse"
boolean22.addObjects([body26])
doc.recompute()

body21.Placement = App.Placement(V(0, 0, 0), App.Rotation(V(0, 0, 1), 300))
boolean23 = body22.newObject("PartDesign::Boolean", "Boolean022")
boolean23.Type = "Fuse"
boolean23.addObjects([body21])
doc.recompute()

boolean24 = body22.newObject("PartDesign::Boolean", "Boolean023")
boolean24.Type = "Fuse"
boolean24.addObjects([body14])
doc.recompute()

boolean25 = body22.newObject("PartDesign::Boolean", "Boolean024")
boolean25.Type = "Cut"
boolean25.addObjects([body])

doc.recompute()
